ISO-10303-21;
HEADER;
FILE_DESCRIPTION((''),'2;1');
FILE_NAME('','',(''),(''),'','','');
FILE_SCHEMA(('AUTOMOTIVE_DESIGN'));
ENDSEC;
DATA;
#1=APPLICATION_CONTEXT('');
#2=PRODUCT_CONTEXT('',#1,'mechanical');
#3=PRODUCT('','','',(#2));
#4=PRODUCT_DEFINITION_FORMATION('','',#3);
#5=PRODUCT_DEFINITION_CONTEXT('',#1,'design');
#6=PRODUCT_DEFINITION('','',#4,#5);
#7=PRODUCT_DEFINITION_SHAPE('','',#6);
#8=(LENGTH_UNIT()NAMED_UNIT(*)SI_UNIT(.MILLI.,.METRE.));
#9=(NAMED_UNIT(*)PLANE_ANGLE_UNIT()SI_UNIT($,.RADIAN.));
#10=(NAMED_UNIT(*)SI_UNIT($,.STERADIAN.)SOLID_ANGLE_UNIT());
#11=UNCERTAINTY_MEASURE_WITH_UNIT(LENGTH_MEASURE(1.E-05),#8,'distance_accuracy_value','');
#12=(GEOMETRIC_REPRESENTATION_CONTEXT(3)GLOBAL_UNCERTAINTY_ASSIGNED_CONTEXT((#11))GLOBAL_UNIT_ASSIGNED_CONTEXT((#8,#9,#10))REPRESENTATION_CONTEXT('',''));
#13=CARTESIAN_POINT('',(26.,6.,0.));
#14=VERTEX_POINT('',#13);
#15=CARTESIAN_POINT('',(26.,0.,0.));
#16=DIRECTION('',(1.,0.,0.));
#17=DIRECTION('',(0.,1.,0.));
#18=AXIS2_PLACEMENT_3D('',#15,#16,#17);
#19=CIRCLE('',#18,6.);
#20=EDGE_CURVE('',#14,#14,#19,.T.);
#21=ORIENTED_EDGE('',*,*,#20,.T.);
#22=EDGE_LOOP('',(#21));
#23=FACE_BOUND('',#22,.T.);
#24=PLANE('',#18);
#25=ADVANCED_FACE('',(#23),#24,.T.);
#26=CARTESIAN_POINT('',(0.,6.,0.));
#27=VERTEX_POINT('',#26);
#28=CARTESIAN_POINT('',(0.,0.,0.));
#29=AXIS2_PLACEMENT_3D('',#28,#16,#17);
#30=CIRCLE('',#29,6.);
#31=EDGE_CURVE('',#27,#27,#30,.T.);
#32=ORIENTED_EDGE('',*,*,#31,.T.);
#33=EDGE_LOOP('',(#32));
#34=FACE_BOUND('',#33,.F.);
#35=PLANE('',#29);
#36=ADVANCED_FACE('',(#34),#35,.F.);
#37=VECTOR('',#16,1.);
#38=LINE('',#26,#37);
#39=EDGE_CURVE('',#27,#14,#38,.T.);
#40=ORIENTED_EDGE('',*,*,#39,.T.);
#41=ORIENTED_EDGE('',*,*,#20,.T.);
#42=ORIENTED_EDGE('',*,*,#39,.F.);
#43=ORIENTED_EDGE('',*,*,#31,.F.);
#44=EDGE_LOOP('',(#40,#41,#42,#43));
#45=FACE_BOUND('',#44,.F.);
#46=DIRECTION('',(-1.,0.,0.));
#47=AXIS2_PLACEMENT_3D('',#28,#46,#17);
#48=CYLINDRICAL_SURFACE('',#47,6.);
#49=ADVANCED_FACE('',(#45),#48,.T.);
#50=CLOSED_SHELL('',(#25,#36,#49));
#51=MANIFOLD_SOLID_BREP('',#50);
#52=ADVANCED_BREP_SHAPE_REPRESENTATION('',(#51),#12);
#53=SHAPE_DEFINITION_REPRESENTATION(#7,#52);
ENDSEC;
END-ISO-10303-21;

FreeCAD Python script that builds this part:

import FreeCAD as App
import Part
import Sketcher

doc = App.newDocument("Part")
body = doc.addObject("PartDesign::Body", "Body")

# Sketch on YZ plane
sketch1 = body.newObject("Sketcher::SketchObject", "Sketch")
sketch1.AttachmentSupport = (doc.getObject("YZ_Plane"), [""])
sketch1.MapMode = "FlatFace"
sketch1.addGeometry(Part.Circle(App.Vector(0, 0, 0), App.Vector(0, 0, 1), 6), False)
sketch1.addConstraint([
    Sketcher.Constraint("Coincident", 0, 3, -1, 1),
    Sketcher.Constraint("Diameter", 0, 12.0),
])
pad1 = body.newObject("PartDesign::Pad", "Pad")
pad1.Profile = sketch1
pad1.Length = 26

doc.recompute()
